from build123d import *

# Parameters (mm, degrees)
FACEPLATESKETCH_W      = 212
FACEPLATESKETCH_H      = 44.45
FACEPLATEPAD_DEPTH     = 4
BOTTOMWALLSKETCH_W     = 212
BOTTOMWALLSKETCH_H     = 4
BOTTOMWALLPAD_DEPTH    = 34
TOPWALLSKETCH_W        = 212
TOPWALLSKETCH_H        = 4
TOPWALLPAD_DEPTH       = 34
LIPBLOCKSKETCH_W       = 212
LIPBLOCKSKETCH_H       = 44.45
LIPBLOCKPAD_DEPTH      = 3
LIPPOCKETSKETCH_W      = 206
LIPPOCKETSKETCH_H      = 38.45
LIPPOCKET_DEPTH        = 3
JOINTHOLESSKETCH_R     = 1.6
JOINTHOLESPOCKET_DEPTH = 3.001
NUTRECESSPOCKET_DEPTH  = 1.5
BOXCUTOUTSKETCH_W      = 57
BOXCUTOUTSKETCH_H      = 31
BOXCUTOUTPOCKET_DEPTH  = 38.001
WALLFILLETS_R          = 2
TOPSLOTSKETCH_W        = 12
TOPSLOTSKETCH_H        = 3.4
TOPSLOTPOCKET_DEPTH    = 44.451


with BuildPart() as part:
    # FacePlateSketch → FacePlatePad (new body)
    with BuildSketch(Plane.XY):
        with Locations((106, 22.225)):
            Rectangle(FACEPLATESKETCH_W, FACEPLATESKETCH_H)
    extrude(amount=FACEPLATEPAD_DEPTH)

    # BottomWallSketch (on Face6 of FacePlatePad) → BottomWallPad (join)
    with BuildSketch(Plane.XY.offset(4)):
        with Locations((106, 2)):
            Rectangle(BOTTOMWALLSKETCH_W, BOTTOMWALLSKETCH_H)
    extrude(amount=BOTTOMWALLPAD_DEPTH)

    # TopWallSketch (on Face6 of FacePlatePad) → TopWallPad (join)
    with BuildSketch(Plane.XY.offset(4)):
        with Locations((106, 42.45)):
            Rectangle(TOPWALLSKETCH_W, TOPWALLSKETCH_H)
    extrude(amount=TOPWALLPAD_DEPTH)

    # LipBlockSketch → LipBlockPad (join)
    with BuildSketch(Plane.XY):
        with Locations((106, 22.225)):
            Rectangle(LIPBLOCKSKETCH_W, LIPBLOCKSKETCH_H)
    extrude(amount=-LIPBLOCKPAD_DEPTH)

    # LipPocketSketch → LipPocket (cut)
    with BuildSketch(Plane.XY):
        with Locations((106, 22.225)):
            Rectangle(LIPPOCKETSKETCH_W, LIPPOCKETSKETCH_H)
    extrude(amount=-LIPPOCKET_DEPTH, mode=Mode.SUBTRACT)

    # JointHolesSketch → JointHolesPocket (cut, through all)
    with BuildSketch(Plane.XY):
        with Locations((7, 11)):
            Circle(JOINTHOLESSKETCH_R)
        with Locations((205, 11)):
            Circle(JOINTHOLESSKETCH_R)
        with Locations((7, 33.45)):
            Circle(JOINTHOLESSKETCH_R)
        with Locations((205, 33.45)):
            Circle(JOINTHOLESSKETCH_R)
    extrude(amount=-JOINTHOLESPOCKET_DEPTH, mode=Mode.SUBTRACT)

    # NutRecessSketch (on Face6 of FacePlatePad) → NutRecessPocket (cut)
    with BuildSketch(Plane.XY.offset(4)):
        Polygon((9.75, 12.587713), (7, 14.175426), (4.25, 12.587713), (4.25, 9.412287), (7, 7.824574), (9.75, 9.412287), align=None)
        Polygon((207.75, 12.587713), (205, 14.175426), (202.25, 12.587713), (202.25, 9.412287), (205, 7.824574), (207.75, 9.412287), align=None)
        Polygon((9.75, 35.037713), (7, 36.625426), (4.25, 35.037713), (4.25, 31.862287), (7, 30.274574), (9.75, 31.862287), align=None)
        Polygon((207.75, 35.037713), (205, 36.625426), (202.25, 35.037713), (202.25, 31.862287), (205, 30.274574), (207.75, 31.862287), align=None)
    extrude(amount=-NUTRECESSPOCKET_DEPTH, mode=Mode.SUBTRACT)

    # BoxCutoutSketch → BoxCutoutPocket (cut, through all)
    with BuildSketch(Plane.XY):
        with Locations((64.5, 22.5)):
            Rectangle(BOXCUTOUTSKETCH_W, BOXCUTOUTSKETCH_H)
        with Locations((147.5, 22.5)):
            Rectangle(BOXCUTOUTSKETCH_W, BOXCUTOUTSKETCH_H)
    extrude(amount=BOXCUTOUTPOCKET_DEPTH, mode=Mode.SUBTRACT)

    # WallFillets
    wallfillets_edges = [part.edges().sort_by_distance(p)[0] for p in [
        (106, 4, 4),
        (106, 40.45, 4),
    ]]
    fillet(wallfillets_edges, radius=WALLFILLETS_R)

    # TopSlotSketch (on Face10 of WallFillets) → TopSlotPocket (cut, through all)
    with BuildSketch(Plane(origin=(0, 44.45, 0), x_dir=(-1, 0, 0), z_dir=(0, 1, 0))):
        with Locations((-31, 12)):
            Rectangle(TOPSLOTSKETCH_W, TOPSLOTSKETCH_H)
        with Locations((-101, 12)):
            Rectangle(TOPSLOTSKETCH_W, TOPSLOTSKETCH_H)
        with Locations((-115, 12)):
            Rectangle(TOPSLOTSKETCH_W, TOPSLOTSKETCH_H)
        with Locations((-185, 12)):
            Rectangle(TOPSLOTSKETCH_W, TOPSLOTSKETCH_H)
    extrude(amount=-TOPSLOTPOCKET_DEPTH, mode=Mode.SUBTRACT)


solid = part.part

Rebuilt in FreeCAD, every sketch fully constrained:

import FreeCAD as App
import Part
import Sketcher
from FreeCAD import Vector
Q = App.Units.Quantity


def edges_at(feature, points):
    """Names of the edges that pass closest to the given points."""
    edges = feature.Shape.Edges
    near = lambda p: min(range(len(edges)), key=lambda i: edges[i].distToShape(Part.Vertex(*p))[0])
    return sorted({f"Edge{near(p) + 1}" for p in points})

doc = App.newDocument("Part")
body = doc.addObject("PartDesign::Body", "Body")

# Sketch on XY plane
sketch1 = body.newObject("Sketcher::SketchObject", "Sketch")
sketch1.AttachmentSupport = (doc.getObject("XY_Plane"), [""])
sketch1.MapMode = "FlatFace"
sketch1.addGeometry([
    Part.LineSegment(Vector(0, 44.45, 0), Vector(0, 0, 0)),
    Part.LineSegment(Vector(0, 0, 0), Vector(212, 0, 0)),
    Part.LineSegment(Vector(212, 0, 0), Vector(212, 44.45, 0)),
    Part.LineSegment(Vector(212, 44.45, 0), Vector(0, 44.45, 0)),
], False)
sketch1.addConstraint([
    Sketcher.Constraint("Coincident", 0, 2, 1, 1),
    Sketcher.Constraint("Coincident", 1, 2, 2, 1),
    Sketcher.Constraint("Coincident", 2, 2, 3, 1),
    Sketcher.Constraint("Coincident", 3, 2, 0, 1),
    Sketcher.Constraint("Vertical", 0),
    Sketcher.Constraint("Horizontal", 1),
    Sketcher.Constraint("Vertical", 2),
    Sketcher.Constraint("Horizontal", 3),
    Sketcher.Constraint("Coincident", 0, 2, -1, 1),
    Sketcher.Constraint("DistanceX", 1, 1, 1, 2, Q("212 mm")),
    Sketcher.Constraint("DistanceY", 0, 2, 0, 1, Q("44.45 mm")),
])
pad1 = body.newObject("PartDesign::Pad", "Pad")
pad1.Profile = sketch1
pad1.Length = 4

# Sketch on XY plane
sketch2 = body.newObject("Sketcher::SketchObject", "Sketch001")
sketch2.AttachmentSupport = (doc.getObject("XY_Plane"), [""])
sketch2.MapMode = "FlatFace"
sketch2.AttachmentOffset = App.Placement(Vector(0, 0, 4), App.Rotation())
sketch2.addGeometry([
    Part.LineSegment(Vector(0, 4, 0), Vector(0, 0, 0)),
    Part.LineSegment(Vector(0, 0, 0), Vector(212, 0, 0)),
    Part.LineSegment(Vector(212, 0, 0), Vector(212, 4, 0)),
    Part.LineSegment(Vector(212, 4, 0), Vector(0, 4, 0)),
], False)
sketch2.addConstraint([
    Sketcher.Constraint("Coincident", 0, 2, 1, 1),
    Sketcher.Constraint("Coincident", 1, 2, 2, 1),
    Sketcher.Constraint("Coincident", 2, 2, 3, 1),
    Sketcher.Constraint("Coincident", 3, 2, 0, 1),
    Sketcher.Constraint("Vertical", 0),
    Sketcher.Constraint("Horizontal", 1),
    Sketcher.Constraint("Vertical", 2),
    Sketcher.Constraint("Horizontal", 3),
    Sketcher.Constraint("Coincident", 0, 2, -1, 1),
    Sketcher.Constraint("DistanceX", 1, 1, 1, 2, Q("212 mm")),
    Sketcher.Constraint("DistanceY", 0, 2, 0, 1, Q("4 mm")),
])
pad2 = body.newObject("PartDesign::Pad", "Pad001")
pad2.Profile = sketch2
pad2.Length = 34

# Sketch on XY plane
sketch3 = body.newObject("Sketcher::SketchObject", "Sketch002")
sketch3.AttachmentSupport = (doc.getObject("XY_Plane"), [""])
sketch3.MapMode = "FlatFace"
sketch3.AttachmentOffset = App.Placement(Vector(0, 0, 4), App.Rotation())
sketch3.addGeometry([
    Part.LineSegment(Vector(0, 44.45, 0), Vector(0, 40.45, 0)),
    Part.LineSegment(Vector(0, 40.45, 0), Vector(212, 40.45, 0)),
    Part.LineSegment(Vector(212, 40.45, 0), Vector(212, 44.45, 0)),
    Part.LineSegment(Vector(212, 44.45, 0), Vector(0, 44.45, 0)),
], False)
sketch3.addConstraint([
    Sketcher.Constraint("Coincident", 0, 2, 1, 1),
    Sketcher.Constraint("Coincident", 1, 2, 2, 1),
    Sketcher.Constraint("Coincident", 2, 2, 3, 1),
    Sketcher.Constraint("Coincident", 3, 2, 0, 1),
    Sketcher.Constraint("Vertical", 0),
    Sketcher.Constraint("Horizontal", 1),
    Sketcher.Constraint("Vertical", 2),
    Sketcher.Constraint("Horizontal", 3),
    Sketcher.Constraint("PointOnObject", 0, 2, -2),
    Sketcher.Constraint("DistanceX", 1, 1, 1, 2, Q("212 mm")),
    Sketcher.Constraint("DistanceY", 0, 2, 0, 1, Q("4 mm")),
    Sketcher.Constraint("DistanceY", -1, 1, 0, 2, Q("40.45 mm")),
])
pad3 = body.newObject("PartDesign::Pad", "Pad002")
pad3.Profile = sketch3
pad3.Length = 34

# Sketch on XY plane
sketch4 = body.newObject("Sketcher::SketchObject", "Sketch003")
sketch4.AttachmentSupport = (doc.getObject("XY_Plane"), [""])
sketch4.MapMode = "FlatFace"
sketch4.addGeometry([
    Part.LineSegment(Vector(0, 44.45, 0), Vector(0, 0, 0)),
    Part.LineSegment(Vector(0, 0, 0), Vector(212, 0, 0)),
    Part.LineSegment(Vector(212, 0, 0), Vector(212, 44.45, 0)),
    Part.LineSegment(Vector(212, 44.45, 0), Vector(0, 44.45, 0)),
], False)
sketch4.addConstraint([
    Sketcher.Constraint("Coincident", 0, 2, 1, 1),
    Sketcher.Constraint("Coincident", 1, 2, 2, 1),
    Sketcher.Constraint("Coincident", 2, 2, 3, 1),
    Sketcher.Constraint("Coincident", 3, 2, 0, 1),
    Sketcher.Constraint("Vertical", 0),
    Sketcher.Constraint("Horizontal", 1),
    Sketcher.Constraint("Vertical", 2),
    Sketcher.Constraint("Horizontal", 3),
    Sketcher.Constraint("Coincident", 0, 2, -1, 1),
    Sketcher.Constraint("DistanceX", 1, 1, 1, 2, Q("212 mm")),
    Sketcher.Constraint("DistanceY", 0, 2, 0, 1, Q("44.45 mm")),
])
pad4 = body.newObject("PartDesign::Pad", "Pad003")
pad4.Profile = sketch4
pad4.Length = 3
pad4.Reversed = True

# Sketch on XY plane
sketch5 = body.newObject("Sketcher::SketchObject", "Sketch004")
sketch5.AttachmentSupport = (doc.getObject("XY_Plane"), [""])
sketch5.MapMode = "FlatFace"
sketch5.addGeometry([
    Part.LineSegment(Vector(3, 41.45, 0), Vector(3, 3, 0)),
    Part.LineSegment(Vector(3, 3, 0), Vector(209, 3, 0)),
    Part.LineSegment(Vector(209, 3, 0), Vector(209, 41.45, 0)),
    Part.LineSegment(Vector(209, 41.45, 0), Vector(3, 41.45, 0)),
], False)
sketch5.addConstraint([
    Sketcher.Constraint("Coincident", 0, 2, 1, 1),
    Sketcher.Constraint("Coincident", 1, 2, 2, 1),
    Sketcher.Constraint("Coincident", 2, 2, 3, 1),
    Sketcher.Constraint("Coincident", 3, 2, 0, 1),
    Sketcher.Constraint("Vertical", 0),
    Sketcher.Constraint("Horizontal", 1),
    Sketcher.Constraint("Vertical", 2),
    Sketcher.Constraint("Horizontal", 3),
    Sketcher.Constraint("DistanceX", 1, 1, 1, 2, Q("206 mm")),
    Sketcher.Constraint("DistanceX", -1, 1, 0, 2, Q("3 mm")),
    Sketcher.Constraint("DistanceY", -1, 1, 0, 2, Q("3 mm")),
    Sketcher.Constraint("DistanceY", 0, 2, 0, 1, Q("38.45 mm")),
])
pocket1 = body.newObject("PartDesign::Pocket", "Pocket")
pocket1.Profile = sketch5
pocket1.Length = 3

# Sketch on XY plane
sketch6 = body.newObject("Sketcher::SketchObject", "Sketch005")
sketch6.AttachmentSupport = (doc.getObject("XY_Plane"), [""])
sketch6.MapMode = "FlatFace"
sketch6.addGeometry([
    Part.Circle(Vector(7, 11, 0), Vector(0, 0, 1), 1.6),
    Part.Circle(Vector(205, 11, 0), Vector(0, 0, 1), 1.6),
    Part.Circle(Vector(7, 33.45, 0), Vector(0, 0, 1), 1.6),
    Part.Circle(Vector(205, 33.45, 0), Vector(0, 0, 1), 1.6),
], False)
sketch6.addConstraint([
    Sketcher.Constraint("Equal", 0, 1),
    Sketcher.Constraint("Equal", 1, 2),
    Sketcher.Constraint("Equal", 2, 3),
    Sketcher.Constraint("Horizontal", 0, 3, 1, 3),
    Sketcher.Constraint("Horizontal", 2, 3, 3, 3),
    Sketcher.Constraint("Vertical", 0, 3, 2, 3),
    Sketcher.Constraint("Vertical", 1, 3, 3, 3),
    Sketcher.Constraint("Diameter", 0, Q("3.2 mm")),
    Sketcher.Constraint("DistanceX", -1, 1, 0, 3, Q("7 mm")),
    Sketcher.Constraint("DistanceY", -1, 1, 0, 3, Q("11 mm")),
    Sketcher.Constraint("DistanceX", -1, 1, 1, 3, Q("205 mm")),
    Sketcher.Constraint("DistanceY", -1, 1, 2, 3, Q("33.45 mm")),
])
pocket2 = body.newObject("PartDesign::Pocket", "Pocket001")
pocket2.Profile = sketch6
pocket2.Type = "ThroughAll"

# Sketch on XY plane
sketch7 = body.newObject("Sketcher::SketchObject", "Sketch006")
sketch7.AttachmentSupport = (doc.getObject("XY_Plane"), [""])
sketch7.MapMode = "FlatFace"
sketch7.AttachmentOffset = App.Placement(Vector(0, 0, 4), App.Rotation())
sketch7.addGeometry([
    Part.LineSegment(Vector(9.75, 12.587713, 0), Vector(7, 14.175426, 0)),  # 0
    Part.LineSegment(Vector(7, 14.175426, 0), Vector(4.25, 12.587713, 0)),  # 1
    Part.LineSegment(Vector(4.25, 12.587713, 0), Vector(4.25, 9.412287, 0)),  # 2
    Part.LineSegment(Vector(4.25, 9.412287, 0), Vector(7, 7.824574, 0)),  # 3
    Part.LineSegment(Vector(7, 7.824574, 0), Vector(9.75, 9.412287, 0)),  # 4
    Part.LineSegment(Vector(9.75, 9.412287, 0), Vector(9.75, 12.587713, 0)),  # 5
    Part.LineSegment(Vector(207.75, 12.587713, 0), Vector(205, 14.175426, 0)),  # 6
    Part.LineSegment(Vector(205, 14.175426, 0), Vector(202.25, 12.587713, 0)),  # 7
    Part.LineSegment(Vector(202.25, 12.587713, 0), Vector(202.25, 9.412287, 0)),  # 8
    Part.LineSegment(Vector(202.25, 9.412287, 0), Vector(205, 7.824574, 0)),  # 9
    Part.LineSegment(Vector(205, 7.824574, 0), Vector(207.75, 9.412287, 0)),  # 10
    Part.LineSegment(Vector(207.75, 9.412287, 0), Vector(207.75, 12.587713, 0)),  # 11
    Part.LineSegment(Vector(9.75, 35.037713, 0), Vector(7, 36.625426, 0)),  # 12
    Part.LineSegment(Vector(7, 36.625426, 0), Vector(4.25, 35.037713, 0)),  # 13
    Part.LineSegment(Vector(4.25, 35.037713, 0), Vector(4.25, 31.862287, 0)),  # 14
    Part.LineSegment(Vector(4.25, 31.862287, 0), Vector(7, 30.274574, 0)),  # 15
    Part.LineSegment(Vector(7, 30.274574, 0), Vector(9.75, 31.862287, 0)),  # 16
    Part.LineSegment(Vector(9.75, 31.862287, 0), Vector(9.75, 35.037713, 0)),  # 17
    Part.LineSegment(Vector(207.75, 35.037713, 0), Vector(205, 36.625426, 0)),  # 18
    Part.LineSegment(Vector(205, 36.625426, 0), Vector(202.25, 35.037713, 0)),  # 19
    Part.LineSegment(Vector(202.25, 35.037713, 0), Vector(202.25, 31.862287, 0)),  # 20
    Part.LineSegment(Vector(202.25, 31.862287, 0), Vector(205, 30.274574, 0)),  # 21
    Part.LineSegment(Vector(205, 30.274574, 0), Vector(207.75, 31.862287, 0)),  # 22
    Part.LineSegment(Vector(207.75, 31.862287, 0), Vector(207.75, 35.037713, 0)),  # 23
], False)
sketch7.addConstraint([
    Sketcher.Constraint("Coincident", 0, 2, 1, 1),
    Sketcher.Constraint("Coincident", 1, 2, 2, 1),
    Sketcher.Constraint("Coincident", 2, 2, 3, 1),
    Sketcher.Constraint("Coincident", 3, 2, 4, 1),
    Sketcher.Constraint("Coincident", 4, 2, 5, 1),
    Sketcher.Constraint("Coincident", 5, 2, 0, 1),
    Sketcher.Constraint("Coincident", 6, 2, 7, 1),
    Sketcher.Constraint("Coincident", 7, 2, 8, 1),
    Sketcher.Constraint("Coincident", 8, 2, 9, 1),
    Sketcher.Constraint("Coincident", 9, 2, 10, 1),
    Sketcher.Constraint("Coincident", 10, 2, 11, 1),
    Sketcher.Constraint("Coincident", 11, 2, 6, 1),
    Sketcher.Constraint("Coincident", 12, 2, 13, 1),
    Sketcher.Constraint("Coincident", 13, 2, 14, 1),
    Sketcher.Constraint("Coincident", 14, 2, 15, 1),
    Sketcher.Constraint("Coincident", 15, 2, 16, 1),
    Sketcher.Constraint("Coincident", 16, 2, 17, 1),
    Sketcher.Constraint("Coincident", 17, 2, 12, 1),
    Sketcher.Constraint("Coincident", 18, 2, 19, 1),
    Sketcher.Constraint("Coincident", 19, 2, 20, 1),
    Sketcher.Constraint("Coincident", 20, 2, 21, 1),
    Sketcher.Constraint("Coincident", 21, 2, 22, 1),
    Sketcher.Constraint("Coincident", 22, 2, 23, 1),
    Sketcher.Constraint("Coincident", 23, 2, 18, 1),
    Sketcher.Constraint("Vertical", 2),
    Sketcher.Constraint("Vertical", 5),
    Sketcher.Constraint("Vertical", 8),
    Sketcher.Constraint("Vertical", 11),
    Sketcher.Constraint("Vertical", 14),
    Sketcher.Constraint("Vertical", 17),
    Sketcher.Constraint("Vertical", 20),
    Sketcher.Constraint("Vertical", 23),
    Sketcher.Constraint("Parallel", 0, 3),
    Sketcher.Constraint("Parallel", 1, 4),
    Sketcher.Constraint("Parallel", 3, 6),
    Sketcher.Constraint("Parallel", 4, 7),
    Sketcher.Constraint("Parallel", 6, 9),
    Sketcher.Constraint("Parallel", 7, 10),
    Sketcher.Constraint("Parallel", 9, 12),
    Sketcher.Constraint("Parallel", 10, 13),
    Sketcher.Constraint("Parallel", 12, 15),
    Sketcher.Constraint("Parallel", 13, 16),
    Sketcher.Constraint("Parallel", 15, 18),
    Sketcher.Constraint("Parallel", 16, 19),
    Sketcher.Constraint("Parallel", 18, 21),
    Sketcher.Constraint("Parallel", 19, 22),
    Sketcher.Constraint("Horizontal", 2, 2, 4, 2),
    Sketcher.Constraint("Horizontal", 1, 2, 5, 2),
    Sketcher.Constraint("Horizontal", 0, 2, 6, 2),
    Sketcher.Constraint("Horizontal", 5, 2, 7, 2),
    Sketcher.Constraint("Horizontal", 4, 2, 8, 2),
    Sketcher.Constraint("Horizontal", 3, 2, 9, 2),
    Sketcher.Constraint("Horizontal", 8, 2, 10, 2),
    Sketcher.Constraint("Horizontal", 14, 2, 16, 2),
    Sketcher.Constraint("Horizontal", 13, 2, 17, 2),
    Sketcher.Constraint("Horizontal", 12, 2, 18, 2),
    Sketcher.Constraint("Horizontal", 17, 2, 19, 2),
    Sketcher.Constraint("Horizontal", 16, 2, 20, 2),
    Sketcher.Constraint("Horizontal", 15, 2, 21, 2),
    Sketcher.Constraint("Horizontal", 20, 2, 22, 2),
    Sketcher.Constraint("Vertical", 0, 2, 3, 2),
    Sketcher.Constraint("Vertical", 3, 2, 12, 2),
    Sketcher.Constraint("Vertical", 2, 2, 13, 2),
    Sketcher.Constraint("Vertical", 9, 2, 18, 2),
    Sketcher.Constraint("Equal", 11, 14),
    Sketcher.Constraint("Angle", 0, Q("150.000004 deg")),
    Sketcher.Constraint("DistanceX", -1, 1, 0, 2, Q("7 mm")),
    Sketcher.Constraint("DistanceX", -1, 1, 6, 2, Q("205 mm")),
    Sketcher.Constraint("DistanceX", 2, 2, 4, 2, Q("5.5 mm")),
    Sketcher.Constraint("DistanceY", 0, 2, 12, 2, Q("22.45 mm")),
    Sketcher.Constraint("DistanceY", 2, 2, 2, 1, Q("3.175426 mm")),
    Sketcher.Constraint("DistanceY", -1, 1, 0, 2, Q("14.175426 mm")),
])
pocket3 = body.newObject("PartDesign::Pocket", "Pocket002")
pocket3.Profile = sketch7
pocket3.Length = 1.5

# Sketch on XY plane
sketch8 = body.newObject("Sketcher::SketchObject", "Sketch007")
sketch8.AttachmentSupport = (doc.getObject("XY_Plane"), [""])
sketch8.MapMode = "FlatFace"
sketch8.addGeometry([
    Part.LineSegment(Vector(36, 38, 0), Vector(36, 7, 0)),  # 0
    Part.LineSegment(Vector(36, 7, 0), Vector(93, 7, 0)),  # 1
    Part.LineSegment(Vector(93, 7, 0), Vector(93, 38, 0)),  # 2
    Part.LineSegment(Vector(93, 38, 0), Vector(36, 38, 0)),  # 3
    Part.LineSegment(Vector(119, 38, 0), Vector(119, 7, 0)),  # 4
    Part.LineSegment(Vector(119, 7, 0), Vector(176, 7, 0)),  # 5
    Part.LineSegment(Vector(176, 7, 0), Vector(176, 38, 0)),  # 6
    Part.LineSegment(Vector(176, 38, 0), Vector(119, 38, 0)),  # 7
], False)
sketch8.addConstraint([
    Sketcher.Constraint("Coincident", 0, 2, 1, 1),
    Sketcher.Constraint("Coincident", 1, 2, 2, 1),
    Sketcher.Constraint("Coincident", 2, 2, 3, 1),
    Sketcher.Constraint("Coincident", 3, 2, 0, 1),
    Sketcher.Constraint("Coincident", 4, 2, 5, 1),
    Sketcher.Constraint("Coincident", 5, 2, 6, 1),
    Sketcher.Constraint("Coincident", 6, 2, 7, 1),
    Sketcher.Constraint("Coincident", 7, 2, 4, 1),
    Sketcher.Constraint("Vertical", 0),
    Sketcher.Constraint("Horizontal", 1),
    Sketcher.Constraint("Vertical", 2),
    Sketcher.Constraint("Horizontal", 3),
    Sketcher.Constraint("Vertical", 4),
    Sketcher.Constraint("Horizontal", 5),
    Sketcher.Constraint("Vertical", 6),
    Sketcher.Constraint("Horizontal", 7),
    Sketcher.Constraint("Horizontal", 1, 2, 4, 2),
    Sketcher.Constraint("Horizontal", 3, 2, 6, 2),
    Sketcher.Constraint("Equal", 3, 5),
    Sketcher.Constraint("DistanceX", 1, 1, 1, 2, Q("57 mm")),
    Sketcher.Constraint("DistanceY", 0, 2, 0, 1, Q("31 mm")),
    Sketcher.Constraint("DistanceX", -1, 1, 0, 2, Q("36 mm")),
    Sketcher.Constraint("DistanceY", -1, 1, 0, 2, Q("7 mm")),
    Sketcher.Constraint("DistanceX", -1, 1, 4, 2, Q("119 mm")),
])
pocket4 = body.newObject("PartDesign::Pocket", "Pocket003")
pocket4.Profile = sketch8
pocket4.Type = "ThroughAll"
pocket4.Reversed = True
doc.recompute()

fillet = body.newObject("PartDesign::Fillet", "Fillet")
fillet.Base = (pocket4, edges_at(pocket4, [(106, 4, 4), (106, 40.45, 4)]))
fillet.Radius = 2

# Sketch on XZ plane
sketch9 = body.newObject("Sketcher::SketchObject", "Sketch008")
sketch9.AttachmentSupport = (doc.getObject("XZ_Plane"), [""])
sketch9.MapMode = "FlatFace"
sketch9.AttachmentOffset = App.Placement(Vector(0, 0, -44.45), App.Rotation())
sketch9.addGeometry([
    Part.LineSegment(Vector(37, 13.7, 0), Vector(37, 10.3, 0)),  # 0
    Part.LineSegment(Vector(37, 10.3, 0), Vector(25, 10.3, 0)),  # 1
    Part.LineSegment(Vector(25, 10.3, 0), Vector(25, 13.7, 0)),  # 2
    Part.LineSegment(Vector(25, 13.7, 0), Vector(37, 13.7, 0)),  # 3
    Part.LineSegment(Vector(107, 13.7, 0), Vector(107, 10.3, 0)),  # 4
    Part.LineSegment(Vector(107, 10.3, 0), Vector(95, 10.3, 0)),  # 5
    Part.LineSegment(Vector(95, 10.3, 0), Vector(95, 13.7, 0)),  # 6
    Part.LineSegment(Vector(95, 13.7, 0), Vector(107, 13.7, 0)),  # 7
    Part.LineSegment(Vector(121, 13.7, 0), Vector(121, 10.3, 0)),  # 8
    Part.LineSegment(Vector(121, 10.3, 0), Vector(109, 10.3, 0)),  # 9
    Part.LineSegment(Vector(109, 10.3, 0), Vector(109, 13.7, 0)),  # 10
    Part.LineSegment(Vector(109, 13.7, 0), Vector(121, 13.7, 0)),  # 11
    Part.LineSegment(Vector(191, 13.7, 0), Vector(191, 10.3, 0)),  # 12
    Part.LineSegment(Vector(191, 10.3, 0), Vector(179, 10.3, 0)),  # 13
    Part.LineSegment(Vector(179, 10.3, 0), Vector(179, 13.7, 0)),  # 14
    Part.LineSegment(Vector(179, 13.7, 0), Vector(191, 13.7, 0)),  # 15
], False)
sketch9.addConstraint([
    Sketcher.Constraint("Coincident", 0, 2, 1, 1),
    Sketcher.Constraint("Coincident", 1, 2, 2, 1),
    Sketcher.Constraint("Coincident", 2, 2, 3, 1),
    Sketcher.Constraint("Coincident", 3, 2, 0, 1),
    Sketcher.Constraint("Coincident", 4, 2, 5, 1),
    Sketcher.Constraint("Coincident", 5, 2, 6, 1),
    Sketcher.Constraint("Coincident", 6, 2, 7, 1),
    Sketcher.Constraint("Coincident", 7, 2, 4, 1),
    Sketcher.Constraint("Coincident", 8, 2, 9, 1),
    Sketcher.Constraint("Coincident", 9, 2, 10, 1),
    Sketcher.Constraint("Coincident", 10, 2, 11, 1),
    Sketcher.Constraint("Coincident", 11, 2, 8, 1),
    Sketcher.Constraint("Coincident", 12, 2, 13, 1),
    Sketcher.Constraint("Coincident", 13, 2, 14, 1),
    Sketcher.Constraint("Coincident", 14, 2, 15, 1),
    Sketcher.Constraint("Coincident", 15, 2, 12, 1),
    Sketcher.Constraint("Vertical", 0),
    Sketcher.Constraint("Horizontal", 1),
    Sketcher.Constraint("Vertical", 2),
    Sketcher.Constraint("Horizontal", 3),
    Sketcher.Constraint("Vertical", 4),
    Sketcher.Constraint("Horizontal", 5),
    Sketcher.Constraint("Vertical", 6),
    Sketcher.Constraint("Horizontal", 7),
    Sketcher.Constraint("Vertical", 8),
    Sketcher.Constraint("Horizontal", 9),
    Sketcher.Constraint("Vertical", 10),
    Sketcher.Constraint("Horizontal", 11),
    Sketcher.Constraint("Vertical", 12),
    Sketcher.Constraint("Horizontal", 13),
    Sketcher.Constraint("Vertical", 14),
    Sketcher.Constraint("Horizontal", 15),
    Sketcher.Constraint("Horizontal", 1, 2, 4, 2),
    Sketcher.Constraint("Horizontal", 3, 2, 6, 2),
    Sketcher.Constraint("Horizontal", 5, 2, 8, 2),
    Sketcher.Constraint("Horizontal", 7, 2, 10, 2),
    Sketcher.Constraint("Horizontal", 9, 2, 12, 2),
    Sketcher.Constraint("Horizontal", 11, 2, 14, 2),
    Sketcher.Constraint("Equal", 3, 5),
    Sketcher.Constraint("Equal", 7, 9),
    Sketcher.Constraint("Equal", 11, 13),
    Sketcher.Constraint("DistanceX", 1, 2, 1, 1, Q("12 mm")),
    Sketcher.Constraint("DistanceY", 0, 2, 0, 1, Q("3.4 mm")),
    Sketcher.Constraint("DistanceX", -1, 1, 0, 2, Q("37 mm")),
    Sketcher.Constraint("DistanceX", -1, 1, 4, 2, Q("107 mm")),
    Sketcher.Constraint("DistanceX", -1, 1, 8, 2, Q("121 mm")),
    Sketcher.Constraint("DistanceX", -1, 1, 12, 2, Q("191 mm")),
    Sketcher.Constraint("DistanceY", -1, 1, 0, 2, Q("10.3 mm")),
])
pocket5 = body.newObject("PartDesign::Pocket", "Pocket004")
pocket5.Profile = sketch9
pocket5.Type = "ThroughAll"
pocket5.Reversed = True

doc.recompute()
